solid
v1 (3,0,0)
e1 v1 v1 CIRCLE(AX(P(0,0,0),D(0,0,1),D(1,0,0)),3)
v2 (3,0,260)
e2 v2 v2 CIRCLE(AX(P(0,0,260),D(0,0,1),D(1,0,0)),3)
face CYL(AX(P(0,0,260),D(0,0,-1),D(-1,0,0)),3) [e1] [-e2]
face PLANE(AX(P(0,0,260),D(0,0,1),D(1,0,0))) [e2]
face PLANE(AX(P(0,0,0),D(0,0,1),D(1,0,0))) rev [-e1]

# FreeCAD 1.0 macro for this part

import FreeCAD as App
import Part
import Sketcher
from FreeCAD import Vector
Q = App.Units.Quantity

doc = App.newDocument("Part")
body = doc.addObject("PartDesign::Body", "Body")

# Sketch on XY plane
sketch1 = body.newObject("Sketcher::SketchObject", "Sketch")
sketch1.AttachmentSupport = (doc.getObject("XY_Plane"), [""])
sketch1.MapMode = "FlatFace"
sketch1.addGeometry(Part.Circle(Vector(0, 0, 0), Vector(0, 0, 1), 3), False)
sketch1.addConstraint([
    Sketcher.Constraint("Coincident", 0, 3, -1, 1),
    Sketcher.Constraint("Diameter", 0, Q("6 mm")),
])
pad1 = body.newObject("PartDesign::Pad", "Pad")
pad1.Profile = sketch1
pad1.Length = 260

doc.recompute()
